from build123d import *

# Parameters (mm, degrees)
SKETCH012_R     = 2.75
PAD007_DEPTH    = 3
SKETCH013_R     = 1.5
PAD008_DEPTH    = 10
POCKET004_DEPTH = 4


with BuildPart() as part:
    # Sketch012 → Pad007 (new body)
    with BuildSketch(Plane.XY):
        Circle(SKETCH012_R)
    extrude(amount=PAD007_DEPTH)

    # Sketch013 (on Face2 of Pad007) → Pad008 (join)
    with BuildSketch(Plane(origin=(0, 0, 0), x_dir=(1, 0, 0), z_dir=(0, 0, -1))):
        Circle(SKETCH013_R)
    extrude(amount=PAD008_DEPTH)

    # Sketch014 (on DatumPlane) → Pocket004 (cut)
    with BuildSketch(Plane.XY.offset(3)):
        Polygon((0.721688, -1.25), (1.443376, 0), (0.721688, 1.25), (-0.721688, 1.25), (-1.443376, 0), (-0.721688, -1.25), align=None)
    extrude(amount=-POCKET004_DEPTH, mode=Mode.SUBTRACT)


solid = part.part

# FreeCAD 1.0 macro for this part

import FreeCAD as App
import Part
import Sketcher
from FreeCAD import Vector
Q = App.Units.Quantity


def add_polygon(sketch, points):
    """Adds a closed chain of lines whose ends are joined by coincident constraints."""
    first, n = sketch.GeometryCount, len(points)
    for a, b in zip(points, points[1:] + points[:1]):
        sketch.addGeometry(Part.LineSegment(App.Vector(*a, 0), App.Vector(*b, 0)), False)
    for i in range(n):
        sketch.addConstraint(Sketcher.Constraint("Coincident", first + i, 2, first + (i + 1) % n, 1))

doc = App.newDocument("Part")
body = doc.addObject("PartDesign::Body", "Body")

# Sketch on XY plane
sketch1 = body.newObject("Sketcher::SketchObject", "Sketch")
sketch1.AttachmentSupport = (doc.getObject("XY_Plane"), [""])
sketch1.MapMode = "FlatFace"
sketch1.addGeometry(Part.Circle(Vector(0, 0, 0), Vector(0, 0, 1), 2.75), False)
sketch1.addConstraint([
    Sketcher.Constraint("Coincident", 0, 3, -1, 1),
    Sketcher.Constraint("Diameter", 0, Q("5.5 mm")),
])
pad1 = body.newObject("PartDesign::Pad", "Pad")
pad1.Profile = sketch1
pad1.Length = 3

# Sketch on XY plane
sketch2 = body.newObject("Sketcher::SketchObject", "Sketch001")
sketch2.AttachmentSupport = (doc.getObject("XY_Plane"), [""])
sketch2.MapMode = "FlatFace"
sketch2.addGeometry(Part.Circle(Vector(0, 0, 0), Vector(0, 0, 1), 1.5), False)
sketch2.addConstraint([
    Sketcher.Constraint("Coincident", 0, 3, -1, 1),
    Sketcher.Constraint("Diameter", 0, Q("3 mm")),
])
pad2 = body.newObject("PartDesign::Pad", "Pad001")
pad2.Profile = sketch2
pad2.Length = 10
pad2.Reversed = True

# Sketch on XY plane
sketch3 = body.newObject("Sketcher::SketchObject", "Sketch002")
sketch3.AttachmentSupport = (doc.getObject("XY_Plane"), [""])
sketch3.MapMode = "FlatFace"
sketch3.AttachmentOffset = App.Placement(Vector(0, 0, 3), App.Rotation())
add_polygon(sketch3, [(0.721688, -1.25), (1.443376, 0), (0.721688, 1.25), (-0.721688, 1.25), (-1.443376, 0), (-0.721688, -1.25)])  # lines 0-5
sketch3.addConstraint([
    Sketcher.Constraint("Horizontal", 2),
    Sketcher.Constraint("Horizontal", 5),
    Sketcher.Constraint("Symmetric", 0, 2, 3, 2, -1, 1),
    Sketcher.Constraint("Symmetric", 1, 2, 4, 2, -1, 1),
    Sketcher.Constraint("PointOnObject", 0, 2, -1),
    Sketcher.Constraint("Parallel", 0, 3),
    Sketcher.Constraint("Vertical", 2, 2, 4, 2),
    Sketcher.Constraint("Angle", 0, Q("59.999994 deg")),
    Sketcher.Constraint("DistanceY", 4, 2, 2, 2, Q("2.5 mm")),
    Sketcher.Constraint("DistanceX", 2, 2, 2, 1, Q("1.443376 mm")),
])
pocket1 = body.newObject("PartDesign::Pocket", "Pocket")
pocket1.Profile = sketch3
pocket1.Length = 4

doc.recompute()
